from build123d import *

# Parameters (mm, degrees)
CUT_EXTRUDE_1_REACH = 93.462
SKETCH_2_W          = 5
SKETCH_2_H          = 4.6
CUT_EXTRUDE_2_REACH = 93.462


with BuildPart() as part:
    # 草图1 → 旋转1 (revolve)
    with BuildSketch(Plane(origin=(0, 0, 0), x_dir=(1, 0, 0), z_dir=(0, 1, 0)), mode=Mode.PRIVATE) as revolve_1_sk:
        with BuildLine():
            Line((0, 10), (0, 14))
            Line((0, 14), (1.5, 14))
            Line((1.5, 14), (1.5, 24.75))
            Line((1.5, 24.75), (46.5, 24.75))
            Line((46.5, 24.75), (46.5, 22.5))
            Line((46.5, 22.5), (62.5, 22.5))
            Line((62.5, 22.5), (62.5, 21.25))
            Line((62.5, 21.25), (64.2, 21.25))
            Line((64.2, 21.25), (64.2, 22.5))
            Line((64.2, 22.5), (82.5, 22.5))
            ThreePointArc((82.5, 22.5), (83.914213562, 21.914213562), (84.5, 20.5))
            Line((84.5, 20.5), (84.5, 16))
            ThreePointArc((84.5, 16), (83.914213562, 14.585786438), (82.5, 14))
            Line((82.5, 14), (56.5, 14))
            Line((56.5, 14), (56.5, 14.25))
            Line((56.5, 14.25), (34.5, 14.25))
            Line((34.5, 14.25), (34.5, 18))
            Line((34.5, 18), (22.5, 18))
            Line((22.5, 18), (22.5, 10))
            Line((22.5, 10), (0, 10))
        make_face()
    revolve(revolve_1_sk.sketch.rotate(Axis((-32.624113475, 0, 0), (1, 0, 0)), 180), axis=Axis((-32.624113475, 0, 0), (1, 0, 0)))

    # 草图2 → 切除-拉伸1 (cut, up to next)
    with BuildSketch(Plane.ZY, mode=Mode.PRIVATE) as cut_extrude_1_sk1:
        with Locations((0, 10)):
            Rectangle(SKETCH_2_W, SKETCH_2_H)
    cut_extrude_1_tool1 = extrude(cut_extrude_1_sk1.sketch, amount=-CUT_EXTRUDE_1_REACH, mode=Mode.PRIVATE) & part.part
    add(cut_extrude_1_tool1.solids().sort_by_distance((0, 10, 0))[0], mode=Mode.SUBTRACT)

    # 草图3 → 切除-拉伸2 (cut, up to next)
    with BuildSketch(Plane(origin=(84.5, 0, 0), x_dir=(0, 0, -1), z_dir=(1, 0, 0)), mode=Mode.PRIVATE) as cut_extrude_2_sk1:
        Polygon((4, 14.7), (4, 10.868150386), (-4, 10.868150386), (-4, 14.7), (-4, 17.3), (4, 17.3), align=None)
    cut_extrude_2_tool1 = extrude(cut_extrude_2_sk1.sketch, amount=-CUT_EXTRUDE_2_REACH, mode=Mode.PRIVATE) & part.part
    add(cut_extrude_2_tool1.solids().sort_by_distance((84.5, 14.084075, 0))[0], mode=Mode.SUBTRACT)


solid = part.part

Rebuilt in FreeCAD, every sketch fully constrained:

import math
import FreeCAD as App
import Part
import Sketcher

V = App.Vector
Q = App.Units.Quantity


def add_polygon(sketch, points):
    """Adds a closed chain of lines whose ends are joined by coincident constraints."""
    first, n = sketch.GeometryCount, len(points)
    for a, b in zip(points, points[1:] + points[:1]):
        sketch.addGeometry(Part.LineSegment(App.Vector(*a, 0), App.Vector(*b, 0)), False)
    for i in range(n):
        sketch.addConstraint(Sketcher.Constraint("Coincident", first + i, 2, first + (i + 1) % n, 1))

doc = App.newDocument("Part")
body = doc.addObject("PartDesign::Body", "Body")

sketch1 = body.newObject("Sketcher::SketchObject", "Sketch")
sketch1.AttachmentSupport = (doc.getObject("XZ_Plane"), [""])
sketch1.MapMode = "FlatFace"
sketch1.addGeometry([
    Part.LineSegment(V(0, -14, 0), V(0, -10, 0)),
    Part.LineSegment(V(0, -10, 0), V(22.5, -10, 0)),
    Part.LineSegment(V(22.5, -10, 0), V(22.5, -18, 0)),
    Part.LineSegment(V(22.5, -18, 0), V(34.5, -18, 0)),
    Part.LineSegment(V(34.5, -18, 0), V(34.5, -14.25, 0)),
    Part.LineSegment(V(34.5, -14.25, 0), V(56.5, -14.25, 0)),
    Part.LineSegment(V(56.5, -14.25, 0), V(56.5, -14, 0)),
    Part.LineSegment(V(56.5, -14, 0), V(82.5, -14, 0)),
    Part.ArcOfCircle(Part.Circle(V(82.5, -16, 0), V(0, 0, 1), 2), math.radians(0), math.radians(90)),
    Part.LineSegment(V(84.5, -16, 0), V(84.5, -20.5, 0)),
    Part.ArcOfCircle(Part.Circle(V(82.5, -20.5, 0), V(0, 0, 1), 2), math.radians(-90), math.radians(0)),
    Part.LineSegment(V(82.5, -22.5, 0), V(64.2, -22.5, 0)),
    Part.LineSegment(V(64.2, -22.5, 0), V(64.2, -21.25, 0)),
    Part.LineSegment(V(64.2, -21.25, 0), V(62.5, -21.25, 0)),
    Part.LineSegment(V(62.5, -21.25, 0), V(62.5, -22.5, 0)),
    Part.LineSegment(V(62.5, -22.5, 0), V(46.5, -22.5, 0)),
    Part.LineSegment(V(46.5, -22.5, 0), V(46.5, -24.75, 0)),
    Part.LineSegment(V(46.5, -24.75, 0), V(1.5, -24.75, 0)),
    Part.LineSegment(V(1.5, -24.75, 0), V(1.5, -14, 0)),
    Part.LineSegment(V(1.5, -14, 0), V(0, -14, 0)),
], False)
sketch1.addConstraint([
    Sketcher.Constraint("Coincident", 0, 2, 1, 1),
    Sketcher.Constraint("Coincident", 1, 2, 2, 1),
    Sketcher.Constraint("Coincident", 2, 2, 3, 1),
    Sketcher.Constraint("Coincident", 3, 2, 4, 1),
    Sketcher.Constraint("Coincident", 4, 2, 5, 1),
    Sketcher.Constraint("Coincident", 5, 2, 6, 1),
    Sketcher.Constraint("Coincident", 6, 2, 7, 1),
    Sketcher.Constraint("Tangent", 7, 2, 8, 2),
    Sketcher.Constraint("Tangent", 8, 1, 9, 1),
    Sketcher.Constraint("Tangent", 9, 2, 10, 2),
    Sketcher.Constraint("Tangent", 10, 1, 11, 1),
    Sketcher.Constraint("Coincident", 11, 2, 12, 1),
    Sketcher.Constraint("Coincident", 12, 2, 13, 1),
    Sketcher.Constraint("Coincident", 13, 2, 14, 1),
    Sketcher.Constraint("Coincident", 14, 2, 15, 1),
    Sketcher.Constraint("Coincident", 15, 2, 16, 1),
    Sketcher.Constraint("Coincident", 16, 2, 17, 1),
    Sketcher.Constraint("Coincident", 17, 2, 18, 1),
    Sketcher.Constraint("Coincident", 18, 2, 19, 1),
    Sketcher.Constraint("Coincident", 19, 2, 0, 1),
    Sketcher.Constraint("Vertical", 0),
    Sketcher.Constraint("Horizontal", 1),
    Sketcher.Constraint("Vertical", 2),
    Sketcher.Constraint("Horizontal", 3),
    Sketcher.Constraint("Vertical", 4),
    Sketcher.Constraint("Horizontal", 5),
    Sketcher.Constraint("Vertical", 6),
    Sketcher.Constraint("Horizontal", 7),
    Sketcher.Constraint("Vertical", 9),
    Sketcher.Constraint("Horizontal", 11),
    Sketcher.Constraint("Vertical", 12),
    Sketcher.Constraint("Horizontal", 13),
    Sketcher.Constraint("Vertical", 14),
    Sketcher.Constraint("Horizontal", 15),
    Sketcher.Constraint("Vertical", 16),
    Sketcher.Constraint("Horizontal", 17),
    Sketcher.Constraint("Vertical", 18),
    Sketcher.Constraint("Horizontal", 19),
    Sketcher.Constraint("Equal", 8, 10),
    Sketcher.Constraint("PointOnObject", 0, 2, -2),
    Sketcher.Constraint("Horizontal", 11, 2, 14, 2),
    Sketcher.Constraint("Horizontal", 7, 2, 18, 2),
    Sketcher.Constraint("Radius", 8, Q("2 mm")),
    Sketcher.Constraint("DistanceX", 3, 1, 3, 2, Q("12 mm")),
    Sketcher.Constraint("DistanceX", 5, 1, 5, 2, Q("22 mm")),
    Sketcher.Constraint("DistanceX", 7, 1, 7, 2, Q("26 mm")),
    Sketcher.Constraint("DistanceX", 15, 2, 15, 1, Q("16 mm")),
    Sketcher.Constraint("DistanceX", 17, 2, 17, 1, Q("45 mm")),
    Sketcher.Constraint("DistanceY", 0, 1, 0, 2, Q("4 mm")),
    Sketcher.Constraint("DistanceY", 2, 2, 2, 1, Q("8 mm")),
    Sketcher.Constraint("DistanceX", 1, 1, 1, 2, Q("22.5 mm")),
    Sketcher.Constraint("DistanceX", 11, 2, 11, 1, Q("18.3 mm")),
    Sketcher.Constraint("DistanceX", 13, 2, 13, 1, Q("1.7 mm")),
    Sketcher.Constraint("DistanceY", 9, 2, 9, 1, Q("4.5 mm")),
    Sketcher.Constraint("DistanceY", 8, 3, -1, 1, Q("16 mm")),
    Sketcher.Constraint("DistanceY", 12, 2, 5, 2, Q("7 mm")),
    Sketcher.Constraint("DistanceY", 4, 1, 4, 2, Q("3.75 mm")),
    Sketcher.Constraint("DistanceY", 16, 2, 16, 1, Q("2.25 mm")),
])
revolution = body.newObject("PartDesign::Revolution", "Revolution")
revolution.Profile = sketch1
revolution.ReferenceAxis = (sketch1, ["H_Axis"])
revolution.Angle = 360

sketch2 = body.newObject("Sketcher::SketchObject", "Sketch001")
sketch2.AttachmentSupport = (doc.getObject("YZ_Plane"), [""])
sketch2.MapMode = "FlatFace"
add_polygon(sketch2, [(12.3, -2.5), (7.7, -2.5), (7.7, 2.5), (12.3, 2.5)])
sketch2.addConstraint([
    Sketcher.Constraint("Horizontal", 0),
    Sketcher.Constraint("Vertical", 1),
    Sketcher.Constraint("Horizontal", 2),
    Sketcher.Constraint("Vertical", 3),
    Sketcher.Constraint("DistanceY", 1, 1, 1, 2, Q("5 mm")),
    Sketcher.Constraint("DistanceX", 0, 2, 0, 1, Q("4.6 mm")),
    Sketcher.Constraint("DistanceX", -1, 1, 0, 2, Q("7.7 mm")),
    Sketcher.Constraint("DistanceY", 0, 2, -1, 1, Q("2.5 mm")),
])
pocket1 = body.newObject("PartDesign::Pocket", "Pocket")
pocket1.Profile = sketch2
pocket1.Type = "UpToFirst"
pocket1.Reversed = True

sketch3 = body.newObject("Sketcher::SketchObject", "Sketch002")
sketch3.AttachmentSupport = (doc.getObject("YZ_Plane"), [""])
sketch3.MapMode = "FlatFace"
sketch3.AttachmentOffset = App.Placement(V(0, 0, 84.5), App.Rotation())
add_polygon(sketch3, [(10.86815, -4), (17.3, -4), (17.3, 4), (10.86815, 4)])
sketch3.addConstraint([
    Sketcher.Constraint("Horizontal", 0),
    Sketcher.Constraint("Vertical", 1),
    Sketcher.Constraint("Horizontal", 2),
    Sketcher.Constraint("Vertical", 3),
    Sketcher.Constraint("DistanceY", 1, 1, 1, 2, Q("8 mm")),
    Sketcher.Constraint("DistanceY", 0, 2, -1, 1, Q("4 mm")),
    Sketcher.Constraint("DistanceX", -1, 1, 0, 2, Q("17.3 mm")),
    Sketcher.Constraint("DistanceX", 0, 1, 0, 2, Q("6.43185 mm")),
])
pocket2 = body.newObject("PartDesign::Pocket", "Pocket001")
pocket2.Profile = sketch3
pocket2.Length = 50

doc.recompute()
